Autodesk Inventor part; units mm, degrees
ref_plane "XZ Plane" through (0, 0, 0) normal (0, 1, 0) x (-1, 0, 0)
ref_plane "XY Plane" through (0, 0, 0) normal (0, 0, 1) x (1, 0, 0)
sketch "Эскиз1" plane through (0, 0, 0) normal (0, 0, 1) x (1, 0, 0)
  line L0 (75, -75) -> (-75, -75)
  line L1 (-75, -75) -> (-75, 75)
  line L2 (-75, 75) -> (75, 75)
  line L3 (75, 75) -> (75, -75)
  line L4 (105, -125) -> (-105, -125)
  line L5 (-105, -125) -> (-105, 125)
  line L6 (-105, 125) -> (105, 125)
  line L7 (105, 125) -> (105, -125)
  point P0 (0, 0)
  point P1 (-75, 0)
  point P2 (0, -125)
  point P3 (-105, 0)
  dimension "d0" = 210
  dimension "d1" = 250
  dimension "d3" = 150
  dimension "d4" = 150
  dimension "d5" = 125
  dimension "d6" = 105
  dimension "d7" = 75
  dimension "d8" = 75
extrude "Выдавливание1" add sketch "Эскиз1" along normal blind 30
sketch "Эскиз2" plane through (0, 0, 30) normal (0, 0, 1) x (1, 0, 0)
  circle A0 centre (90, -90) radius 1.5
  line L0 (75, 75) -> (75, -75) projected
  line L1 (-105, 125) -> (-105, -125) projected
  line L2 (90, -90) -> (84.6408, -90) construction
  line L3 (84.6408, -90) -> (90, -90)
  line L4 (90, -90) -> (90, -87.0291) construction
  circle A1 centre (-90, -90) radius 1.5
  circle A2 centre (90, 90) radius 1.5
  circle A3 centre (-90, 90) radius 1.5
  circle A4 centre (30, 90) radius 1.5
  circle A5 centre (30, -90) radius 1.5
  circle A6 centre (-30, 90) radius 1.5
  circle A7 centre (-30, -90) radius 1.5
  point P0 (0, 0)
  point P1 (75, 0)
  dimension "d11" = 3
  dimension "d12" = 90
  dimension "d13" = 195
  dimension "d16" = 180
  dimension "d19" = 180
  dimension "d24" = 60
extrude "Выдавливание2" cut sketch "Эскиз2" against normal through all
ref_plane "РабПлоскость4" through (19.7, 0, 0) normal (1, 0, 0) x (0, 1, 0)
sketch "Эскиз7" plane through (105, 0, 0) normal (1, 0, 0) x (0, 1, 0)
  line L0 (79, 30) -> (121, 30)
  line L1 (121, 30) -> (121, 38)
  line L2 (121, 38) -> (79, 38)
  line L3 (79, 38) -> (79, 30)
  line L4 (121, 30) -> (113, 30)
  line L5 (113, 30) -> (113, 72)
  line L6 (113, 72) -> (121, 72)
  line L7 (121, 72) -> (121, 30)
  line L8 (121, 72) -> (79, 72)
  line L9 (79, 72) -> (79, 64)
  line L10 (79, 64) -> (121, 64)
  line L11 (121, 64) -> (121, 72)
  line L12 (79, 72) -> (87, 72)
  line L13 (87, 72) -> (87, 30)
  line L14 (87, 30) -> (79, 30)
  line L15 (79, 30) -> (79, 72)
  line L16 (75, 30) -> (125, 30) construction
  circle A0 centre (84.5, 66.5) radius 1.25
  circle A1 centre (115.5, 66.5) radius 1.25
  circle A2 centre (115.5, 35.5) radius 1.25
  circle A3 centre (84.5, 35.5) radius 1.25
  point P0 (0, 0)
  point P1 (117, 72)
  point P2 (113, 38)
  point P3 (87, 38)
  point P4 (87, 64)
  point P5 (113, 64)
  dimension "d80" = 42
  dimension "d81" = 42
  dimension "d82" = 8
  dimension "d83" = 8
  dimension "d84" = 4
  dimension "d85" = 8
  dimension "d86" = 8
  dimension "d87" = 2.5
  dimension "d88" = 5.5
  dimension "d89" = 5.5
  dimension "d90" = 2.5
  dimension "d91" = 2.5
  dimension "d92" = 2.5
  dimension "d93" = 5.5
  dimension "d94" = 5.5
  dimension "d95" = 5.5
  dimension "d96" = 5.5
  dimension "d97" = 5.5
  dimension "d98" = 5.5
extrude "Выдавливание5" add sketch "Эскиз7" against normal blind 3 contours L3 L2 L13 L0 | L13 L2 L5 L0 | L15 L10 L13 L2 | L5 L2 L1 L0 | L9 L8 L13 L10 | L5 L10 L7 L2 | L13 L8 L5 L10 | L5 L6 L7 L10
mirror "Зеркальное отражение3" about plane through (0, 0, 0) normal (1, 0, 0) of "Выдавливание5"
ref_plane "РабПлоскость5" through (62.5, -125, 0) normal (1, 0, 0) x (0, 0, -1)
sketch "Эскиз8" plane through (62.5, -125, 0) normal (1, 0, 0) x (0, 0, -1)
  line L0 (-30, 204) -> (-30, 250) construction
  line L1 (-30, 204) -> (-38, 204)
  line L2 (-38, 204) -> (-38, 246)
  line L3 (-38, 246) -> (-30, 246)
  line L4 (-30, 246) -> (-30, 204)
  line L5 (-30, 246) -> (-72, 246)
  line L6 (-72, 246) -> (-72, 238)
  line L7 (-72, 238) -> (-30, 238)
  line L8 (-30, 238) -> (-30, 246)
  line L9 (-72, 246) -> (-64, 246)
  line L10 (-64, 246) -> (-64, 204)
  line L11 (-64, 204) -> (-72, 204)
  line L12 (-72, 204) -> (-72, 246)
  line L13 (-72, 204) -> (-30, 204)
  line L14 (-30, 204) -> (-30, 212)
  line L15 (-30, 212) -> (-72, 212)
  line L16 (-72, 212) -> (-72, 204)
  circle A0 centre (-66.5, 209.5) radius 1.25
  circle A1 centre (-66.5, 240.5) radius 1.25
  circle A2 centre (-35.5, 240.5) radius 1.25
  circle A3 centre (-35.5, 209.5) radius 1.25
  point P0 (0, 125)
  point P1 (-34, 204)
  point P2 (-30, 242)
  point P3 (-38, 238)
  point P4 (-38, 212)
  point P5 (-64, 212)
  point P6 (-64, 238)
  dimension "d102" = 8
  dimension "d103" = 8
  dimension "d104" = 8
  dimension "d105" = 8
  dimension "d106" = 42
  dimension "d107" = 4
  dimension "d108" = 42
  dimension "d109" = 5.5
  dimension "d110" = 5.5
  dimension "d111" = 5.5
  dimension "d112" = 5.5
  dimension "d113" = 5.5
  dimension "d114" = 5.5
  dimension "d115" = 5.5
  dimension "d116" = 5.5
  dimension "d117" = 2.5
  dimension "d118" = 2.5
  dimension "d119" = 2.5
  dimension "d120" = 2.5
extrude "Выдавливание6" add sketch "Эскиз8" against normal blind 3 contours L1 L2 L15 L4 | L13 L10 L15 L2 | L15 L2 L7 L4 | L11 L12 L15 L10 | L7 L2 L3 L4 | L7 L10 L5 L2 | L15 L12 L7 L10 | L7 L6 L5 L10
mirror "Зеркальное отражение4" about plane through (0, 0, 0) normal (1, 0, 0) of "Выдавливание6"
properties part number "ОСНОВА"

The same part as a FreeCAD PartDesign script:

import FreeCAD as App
import Part
import Sketcher

V = App.Vector


def add_polygon(sketch, points):
    """Adds a closed chain of lines whose ends are joined by coincident constraints."""
    first, n = sketch.GeometryCount, len(points)
    for a, b in zip(points, points[1:] + points[:1]):
        sketch.addGeometry(Part.LineSegment(App.Vector(*a, 0), App.Vector(*b, 0)), False)
    for i in range(n):
        sketch.addConstraint(Sketcher.Constraint("Coincident", first + i, 2, first + (i + 1) % n, 1))

doc = App.newDocument("Part")
body = doc.addObject("PartDesign::Body", "Body")

# Sketch on XY plane
sketch1 = doc.addObject("Sketcher::SketchObject", "Sketch")
body.addObject(sketch1)
sketch1.AttachmentSupport = (doc.XY_Plane, [""])
sketch1.MapMode = "FlatFace"
add_polygon(sketch1, [(-105, -125), (105, -125), (105, 125), (-105, 125)])  # lines 0-3
add_polygon(sketch1, [(75, 75), (75, -75), (-75, -75), (-75, 75)])  # lines 4-7
sketch1.addConstraint([
    Sketcher.Constraint("Horizontal", 0),
    Sketcher.Constraint("Vertical", 1),
    Sketcher.Constraint("Horizontal", 2),
    Sketcher.Constraint("Vertical", 3),
    Sketcher.Constraint("Vertical", 4),
    Sketcher.Constraint("Horizontal", 5),
    Sketcher.Constraint("Vertical", 6),
    Sketcher.Constraint("Horizontal", 7),
    Sketcher.Constraint("Symmetric", 0, 2, 2, 2, -1, 1),
    Sketcher.Constraint("Symmetric", 4, 2, 6, 2, -1, 1),
    Sketcher.Constraint("Equal", 7, 4),
    Sketcher.Constraint("DistanceX", 0, 1, 0, 2, 210.0),
    Sketcher.Constraint("DistanceX", 5, 2, 5, 1, 150.0),
    Sketcher.Constraint("DistanceY", 1, 1, 1, 2, 250.0),
])
pad1 = doc.addObject("PartDesign::Pad", "Pad")
body.addObject(pad1)
pad1.Profile = sketch1
pad1.Length = 30

# Sketch on XY plane
sketch2 = doc.addObject("Sketcher::SketchObject", "Sketch001")
body.addObject(sketch2)
sketch2.AttachmentSupport = (doc.XY_Plane, [""])
sketch2.MapMode = "FlatFace"
sketch2.AttachmentOffset = App.Placement(V(0, 0, 30), App.Rotation())
sketch2.addGeometry([
    Part.Circle(V(90, -90, 0), V(0, 0, 1), 1.5),  # 0
    Part.Circle(V(-90, -90, 0), V(0, 0, 1), 1.5),  # 1
    Part.Circle(V(90, 90, 0), V(0, 0, 1), 1.5),  # 2
    Part.Circle(V(-90, 90, 0), V(0, 0, 1), 1.5),  # 3
    Part.Circle(V(30, 90, 0), V(0, 0, 1), 1.5),  # 4
    Part.Circle(V(30, -90, 0), V(0, 0, 1), 1.5),  # 5
    Part.Circle(V(-30, 90, 0), V(0, 0, 1), 1.5),  # 6
    Part.Circle(V(-30, -90, 0), V(0, 0, 1), 1.5),  # 7
], False)
sketch2.addConstraint([
    Sketcher.Constraint("Equal", 0, 1),
    Sketcher.Constraint("Equal", 1, 2),
    Sketcher.Constraint("Equal", 2, 3),
    Sketcher.Constraint("Equal", 3, 4),
    Sketcher.Constraint("Equal", 4, 5),
    Sketcher.Constraint("Equal", 5, 6),
    Sketcher.Constraint("Equal", 6, 7),
    Sketcher.Constraint("Symmetric", 1, 3, 2, 3, -1, 1),
    Sketcher.Constraint("Symmetric", 0, 3, 3, 3, -1, 1),
    Sketcher.Constraint("Symmetric", 5, 3, 6, 3, -1, 1),
    Sketcher.Constraint("Symmetric", 4, 3, 7, 3, -1, 1),
    Sketcher.Constraint("Symmetric", 0, 3, 1, 3, -2),
    Sketcher.Constraint("Symmetric", 4, 3, 6, 3, -2),
    Sketcher.Constraint("Horizontal", 3, 3, 4, 3),
    Sketcher.Constraint("Diameter", 0, 3.0),
    Sketcher.Constraint("DistanceX", -1, 1, 0, 3, 90.0),
    Sketcher.Constraint("DistanceY", 0, 3, -1, 1, 90.0),
    Sketcher.Constraint("DistanceX", 4, 3, 2, 3, 60.0),
])
pocket1 = doc.addObject("PartDesign::Pocket", "Pocket")
body.addObject(pocket1)
pocket1.Profile = sketch2
pocket1.Type = "ThroughAll"

# Sketch on YZ plane
sketch3 = doc.addObject("Sketcher::SketchObject", "Sketch002")
body.addObject(sketch3)
sketch3.AttachmentSupport = (doc.YZ_Plane, [""])
sketch3.MapMode = "FlatFace"
sketch3.AttachmentOffset = App.Placement(V(0, 0, 105), App.Rotation())
add_polygon(sketch3, [(79, 30), (121, 30), (121, 72), (79, 72)])  # lines 0-3
sketch3.addGeometry(Part.Circle(V(84.5, 35.5, 0), V(0, 0, 1), 1.2), False)  # 4
add_polygon(sketch3, [(87, 38), (87, 64), (113, 64), (113, 38)])  # lines 5-8
sketch3.addGeometry(Part.Circle(V(84.5, 66.5, 0), V(0, 0, 1), 1.2), False)  # 9
sketch3.addGeometry(Part.Circle(V(115.5, 35.5, 0), V(0, 0, 1), 1.2), False)  # 10
sketch3.addGeometry(Part.Circle(V(115.5, 66.5, 0), V(0, 0, 1), 1.2), False)  # 11
sketch3.addConstraint([
    Sketcher.Constraint("Horizontal", 0),
    Sketcher.Constraint("Vertical", 1),
    Sketcher.Constraint("Horizontal", 2),
    Sketcher.Constraint("Vertical", 3),
    Sketcher.Constraint("Vertical", 5),
    Sketcher.Constraint("Horizontal", 6),
    Sketcher.Constraint("Vertical", 7),
    Sketcher.Constraint("Horizontal", 8),
    Sketcher.Constraint("Equal", 4, 9),
    Sketcher.Constraint("Equal", 9, 10),
    Sketcher.Constraint("Equal", 10, 11),
    Sketcher.Constraint("Horizontal", 4, 3, 10, 3),
    Sketcher.Constraint("Horizontal", 9, 3, 11, 3),
    Sketcher.Constraint("Vertical", 4, 3, 9, 3),
    Sketcher.Constraint("Vertical", 10, 3, 11, 3),
    Sketcher.Constraint("Equal", 2, 1),
    Sketcher.Constraint("Equal", 8, 5),
    Sketcher.Constraint("Diameter", 4, 2.5),
    Sketcher.Constraint("DistanceX", 0, 1, 0, 2, 42.0),
    Sketcher.Constraint("DistanceX", 2, 2, 5, 2, 8.0),
    Sketcher.Constraint("DistanceY", 5, 2, 2, 2, 8.0),
    Sketcher.Constraint("DistanceX", 6, 2, 1, 2, 8.0),
    Sketcher.Constraint("DistanceX", 10, 3, 0, 2, 5.5),
    Sketcher.Constraint("DistanceY", 0, 2, 10, 3, 5.5),
    Sketcher.Constraint("DistanceY", 11, 3, 1, 2, 5.5),
    Sketcher.Constraint("DistanceX", 2, 2, 9, 3, 5.5),
    Sketcher.Constraint("DistanceX", -1, 1, 0, 2, 121.0),
    Sketcher.Constraint("DistanceY", -1, 1, 0, 2, 30.0),
])
pad2 = doc.addObject("PartDesign::Pad", "Pad001")
body.addObject(pad2)
pad2.Profile = sketch3
pad2.Length = 3
pad2.Reversed = True
doc.recompute()

mirrored = doc.addObject("PartDesign::Mirrored", "Mirrored")
body.addObject(mirrored)
mirrored.Originals = [pad2]
mirrored.MirrorPlane = (doc.YZ_Plane, [""])
body.Tip = mirrored

# Sketch on YZ plane
sketch4 = doc.addObject("Sketcher::SketchObject", "Sketch003")
body.addObject(sketch4)
sketch4.AttachmentSupport = (doc.YZ_Plane, [""])
sketch4.MapMode = "FlatFace"
sketch4.AttachmentOffset = App.Placement(V(0, 0, 62.5), App.Rotation())
add_polygon(sketch4, [(79, 30), (121, 30), (121, 72), (79, 72)])  # lines 0-3
sketch4.addGeometry(Part.Circle(V(84.5, 35.5, 0), V(0, 0, 1), 1.2), False)  # 4
add_polygon(sketch4, [(87, 38), (87, 64), (113, 64), (113, 38)])  # lines 5-8
sketch4.addGeometry(Part.Circle(V(84.5, 66.5, 0), V(0, 0, 1), 1.2), False)  # 9
sketch4.addGeometry(Part.Circle(V(115.5, 35.5, 0), V(0, 0, 1), 1.2), False)  # 10
sketch4.addGeometry(Part.Circle(V(115.5, 66.5, 0), V(0, 0, 1), 1.2), False)  # 11
sketch4.addConstraint([
    Sketcher.Constraint("Horizontal", 0),
    Sketcher.Constraint("Vertical", 1),
    Sketcher.Constraint("Horizontal", 2),
    Sketcher.Constraint("Vertical", 3),
    Sketcher.Constraint("Vertical", 5),
    Sketcher.Constraint("Horizontal", 6),
    Sketcher.Constraint("Vertical", 7),
    Sketcher.Constraint("Horizontal", 8),
    Sketcher.Constraint("Equal", 4, 9),
    Sketcher.Constraint("Equal", 9, 10),
    Sketcher.Constraint("Equal", 10, 11),
    Sketcher.Constraint("Horizontal", 4, 3, 10, 3),
    Sketcher.Constraint("Horizontal", 9, 3, 11, 3),
    Sketcher.Constraint("Vertical", 4, 3, 9, 3),
    Sketcher.Constraint("Vertical", 10, 3, 11, 3),
    Sketcher.Constraint("Equal", 2, 1),
    Sketcher.Constraint("Equal", 8, 5),
    Sketcher.Constraint("Diameter", 4, 2.5),
    Sketcher.Constraint("DistanceX", 0, 1, 0, 2, 42.0),
    Sketcher.Constraint("DistanceX", 2, 2, 5, 2, 8.0),
    Sketcher.Constraint("DistanceY", 5, 2, 2, 2, 8.0),
    Sketcher.Constraint("DistanceX", 6, 2, 1, 2, 8.0),
    Sketcher.Constraint("DistanceX", 10, 3, 0, 2, 5.5),
    Sketcher.Constraint("DistanceY", 0, 2, 10, 3, 5.5),
    Sketcher.Constraint("DistanceY", 11, 3, 1, 2, 5.5),
    Sketcher.Constraint("DistanceX", 2, 2, 9, 3, 5.5),
    Sketcher.Constraint("DistanceX", -1, 1, 0, 2, 121.0),
    Sketcher.Constraint("DistanceY", -1, 1, 0, 2, 30.0),
])
pad3 = doc.addObject("PartDesign::Pad", "Pad002")
body.addObject(pad3)
pad3.Profile = sketch4
pad3.Length = 3
pad3.Reversed = True
doc.recompute()

mirrored2 = doc.addObject("PartDesign::Mirrored", "Mirrored001")
body.addObject(mirrored2)
mirrored2.Originals = [pad3]
mirrored2.MirrorPlane = (doc.YZ_Plane, [""])
body.Tip = mirrored2

doc.recompute()
